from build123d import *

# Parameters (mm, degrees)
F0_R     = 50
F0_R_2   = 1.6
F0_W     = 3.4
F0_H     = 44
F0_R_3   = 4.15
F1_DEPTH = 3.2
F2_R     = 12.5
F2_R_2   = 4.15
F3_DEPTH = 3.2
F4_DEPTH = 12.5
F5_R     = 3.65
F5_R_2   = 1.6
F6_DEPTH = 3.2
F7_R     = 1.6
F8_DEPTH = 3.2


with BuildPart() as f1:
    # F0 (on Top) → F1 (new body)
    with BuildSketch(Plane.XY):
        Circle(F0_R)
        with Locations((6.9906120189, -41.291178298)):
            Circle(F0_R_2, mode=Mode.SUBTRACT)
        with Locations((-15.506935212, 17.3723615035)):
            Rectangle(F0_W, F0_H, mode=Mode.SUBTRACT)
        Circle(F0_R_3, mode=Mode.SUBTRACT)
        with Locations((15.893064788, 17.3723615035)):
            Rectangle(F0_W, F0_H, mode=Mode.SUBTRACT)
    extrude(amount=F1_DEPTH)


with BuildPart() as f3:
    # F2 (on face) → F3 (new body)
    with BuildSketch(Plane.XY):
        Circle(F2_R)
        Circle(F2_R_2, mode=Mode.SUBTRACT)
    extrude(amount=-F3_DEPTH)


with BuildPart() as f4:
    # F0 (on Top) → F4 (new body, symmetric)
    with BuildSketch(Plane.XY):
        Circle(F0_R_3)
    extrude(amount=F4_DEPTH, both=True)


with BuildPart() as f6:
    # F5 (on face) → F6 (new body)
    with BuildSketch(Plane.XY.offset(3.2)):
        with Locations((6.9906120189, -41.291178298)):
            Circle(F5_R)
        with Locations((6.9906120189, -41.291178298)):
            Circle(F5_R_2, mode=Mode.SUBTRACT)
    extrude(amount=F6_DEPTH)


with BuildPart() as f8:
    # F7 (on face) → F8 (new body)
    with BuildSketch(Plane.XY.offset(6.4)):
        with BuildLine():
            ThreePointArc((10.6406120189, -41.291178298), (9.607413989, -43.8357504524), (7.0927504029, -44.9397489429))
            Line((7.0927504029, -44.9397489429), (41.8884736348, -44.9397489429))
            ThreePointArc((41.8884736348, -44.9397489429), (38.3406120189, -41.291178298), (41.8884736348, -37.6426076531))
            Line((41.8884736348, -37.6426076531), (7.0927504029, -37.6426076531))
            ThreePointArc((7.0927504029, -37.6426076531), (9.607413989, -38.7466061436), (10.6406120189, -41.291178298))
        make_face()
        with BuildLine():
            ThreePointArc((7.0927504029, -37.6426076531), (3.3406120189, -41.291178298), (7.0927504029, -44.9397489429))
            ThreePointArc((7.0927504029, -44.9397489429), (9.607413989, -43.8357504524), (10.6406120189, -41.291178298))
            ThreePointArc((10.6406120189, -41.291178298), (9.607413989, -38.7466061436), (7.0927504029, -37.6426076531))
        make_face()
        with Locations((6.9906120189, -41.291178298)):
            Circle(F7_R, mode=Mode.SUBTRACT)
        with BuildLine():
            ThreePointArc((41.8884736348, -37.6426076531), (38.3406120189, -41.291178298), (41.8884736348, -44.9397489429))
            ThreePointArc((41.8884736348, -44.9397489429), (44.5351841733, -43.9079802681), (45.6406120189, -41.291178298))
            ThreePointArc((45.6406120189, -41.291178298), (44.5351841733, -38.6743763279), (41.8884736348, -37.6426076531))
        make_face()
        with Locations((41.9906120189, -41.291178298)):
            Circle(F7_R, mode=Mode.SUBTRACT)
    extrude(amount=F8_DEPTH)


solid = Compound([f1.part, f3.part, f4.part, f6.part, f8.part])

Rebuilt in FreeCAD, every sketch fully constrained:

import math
import FreeCAD as App
import Part
import Sketcher
from FreeCAD import Vector
Q = App.Units.Quantity

doc = App.newDocument("Part")
body = doc.addObject("PartDesign::Body", "Body")

sketch1 = doc.addObject("Sketcher::SketchObject", "Sketch")
body.addObject(sketch1)
sketch1.AttachmentSupport = (doc.XY_Plane, [""])
sketch1.MapMode = "FlatFace"
sketch1.addGeometry(Part.Circle(Vector(0, 0, 0), Vector(0, 0, 1), 50), False)
sketch1.addGeometry(Part.Circle(Vector(7, -41.3, 0), Vector(0, 0, 1), 1.6), False)
sketch1.addGeometry(Part.LineSegment(Vector(-13.8, -4.6, 0), Vector(-17.2, -4.6, 0)), False)
sketch1.addGeometry(Part.LineSegment(Vector(-17.2, -4.6, 0), Vector(-17.2, 39.4, 0)), False)
sketch1.addGeometry(Part.LineSegment(Vector(-17.2, 39.4, 0), Vector(-13.8, 39.4, 0)), False)
sketch1.addGeometry(Part.LineSegment(Vector(-13.8, 39.4, 0), Vector(-13.8, -4.6, 0)), False)
sketch1.addGeometry(Part.Circle(Vector(0, 0, 0), Vector(0, 0, 1), 4.2), False)
sketch1.addGeometry(Part.LineSegment(Vector(17.6, -4.6, 0), Vector(14.2, -4.6, 0)), False)
sketch1.addGeometry(Part.LineSegment(Vector(14.2, -4.6, 0), Vector(14.2, 39.4, 0)), False)
sketch1.addGeometry(Part.LineSegment(Vector(14.2, 39.4, 0), Vector(17.6, 39.4, 0)), False)
sketch1.addGeometry(Part.LineSegment(Vector(17.6, 39.4, 0), Vector(17.6, -4.6, 0)), False)
sketch1.addConstraint(Sketcher.Constraint("Coincident", 2, 2, 3, 1))
sketch1.addConstraint(Sketcher.Constraint("Coincident", 3, 2, 4, 1))
sketch1.addConstraint(Sketcher.Constraint("Coincident", 4, 2, 5, 1))
sketch1.addConstraint(Sketcher.Constraint("Coincident", 5, 2, 2, 1))
sketch1.addConstraint(Sketcher.Constraint("Coincident", 7, 2, 8, 1))
sketch1.addConstraint(Sketcher.Constraint("Coincident", 8, 2, 9, 1))
sketch1.addConstraint(Sketcher.Constraint("Coincident", 9, 2, 10, 1))
sketch1.addConstraint(Sketcher.Constraint("Coincident", 10, 2, 7, 1))
sketch1.addConstraint(Sketcher.Constraint("Horizontal", 2))
sketch1.addConstraint(Sketcher.Constraint("Vertical", 3))
sketch1.addConstraint(Sketcher.Constraint("Horizontal", 4))
sketch1.addConstraint(Sketcher.Constraint("Vertical", 5))
sketch1.addConstraint(Sketcher.Constraint("Horizontal", 7))
sketch1.addConstraint(Sketcher.Constraint("Vertical", 8))
sketch1.addConstraint(Sketcher.Constraint("Horizontal", 9))
sketch1.addConstraint(Sketcher.Constraint("Vertical", 10))
sketch1.addConstraint(Sketcher.Constraint("Coincident", 0, 3, -1, 1))
sketch1.addConstraint(Sketcher.Constraint("Coincident", 6, 3, -1, 1))
sketch1.addConstraint(Sketcher.Constraint("Horizontal", 5, 2, 7, 2))
sketch1.addConstraint(Sketcher.Constraint("Horizontal", 4, 2, 8, 2))
sketch1.addConstraint(Sketcher.Constraint("Equal", 4, 7))
sketch1.addConstraint(Sketcher.Constraint("Diameter", 0, Q("100 mm")))
sketch1.addConstraint(Sketcher.Constraint("Diameter", 1, Q("3.2 mm")))
sketch1.addConstraint(Sketcher.Constraint("Diameter", 6, Q("8.3 mm")))
sketch1.addConstraint(Sketcher.Constraint("DistanceY", 3, 1, 3, 2, Q("44 mm")))
sketch1.addConstraint(Sketcher.Constraint("DistanceX", 2, 2, 2, 1, Q("3.4 mm")))
sketch1.addConstraint(Sketcher.Constraint("DistanceX", 5, 2, 7, 2, Q("28 mm")))
sketch1.addConstraint(Sketcher.Constraint("DistanceY", 1, 3, -1, 1, Q("41.291178 mm")))
sketch1.addConstraint(Sketcher.Constraint("DistanceY", 2, 2, -1, 1, Q("4.627638 mm")))
sketch1.addConstraint(Sketcher.Constraint("DistanceX", -1, 1, 1, 3, Q("6.990612 mm")))
sketch1.addConstraint(Sketcher.Constraint("DistanceX", 2, 2, -1, 1, Q("17.206935 mm")))
pad1 = doc.addObject("PartDesign::Pad", "Pad")
body.addObject(pad1)
pad1.Profile = sketch1
pad1.Length = 3.2
body2 = doc.addObject("PartDesign::Body", "Body001")

sketch2 = doc.addObject("Sketcher::SketchObject", "Sketch001")
body2.addObject(sketch2)
sketch2.AttachmentSupport = (doc.getObject("XY_Plane001"), [""])
sketch2.MapMode = "FlatFace"
sketch2.addGeometry(Part.Circle(Vector(0, 0, 0), Vector(0, 0, 1), 12.5), False)
sketch2.addGeometry(Part.Circle(Vector(0, 0, 0), Vector(0, 0, 1), 4.2), False)
sketch2.addConstraint(Sketcher.Constraint("Coincident", 0, 3, -1, 1))
sketch2.addConstraint(Sketcher.Constraint("Coincident", 1, 3, -1, 1))
sketch2.addConstraint(Sketcher.Constraint("Diameter", 0, Q("25 mm")))
sketch2.addConstraint(Sketcher.Constraint("Diameter", 1, Q("8.3 mm")))
pad2 = doc.addObject("PartDesign::Pad", "Pad001")
body2.addObject(pad2)
pad2.Profile = sketch2
pad2.Length = 3.2
pad2.Reversed = True
body3 = doc.addObject("PartDesign::Body", "Body002")

sketch3 = doc.addObject("Sketcher::SketchObject", "Sketch002")
body3.addObject(sketch3)
sketch3.AttachmentSupport = (doc.getObject("XY_Plane002"), [""])
sketch3.MapMode = "FlatFace"
sketch3.addGeometry(Part.Circle(Vector(0, 0, 0), Vector(0, 0, 1), 4.2), False)
sketch3.addConstraint(Sketcher.Constraint("Coincident", 0, 3, -1, 1))
sketch3.addConstraint(Sketcher.Constraint("Diameter", 0, Q("8.3 mm")))
pad3 = doc.addObject("PartDesign::Pad", "Pad002")
body3.addObject(pad3)
pad3.Profile = sketch3
pad3.Length = 25
pad3.Midplane = True
body4 = doc.addObject("PartDesign::Body", "Body003")

sketch4 = doc.addObject("Sketcher::SketchObject", "Sketch003")
body4.addObject(sketch4)
sketch4.AttachmentSupport = (doc.getObject("XY_Plane003"), [""])
sketch4.MapMode = "FlatFace"
sketch4.AttachmentOffset = App.Placement(Vector(0, 0, 3.2), App.Rotation())
sketch4.addGeometry(Part.Circle(Vector(7, -41.3, 0), Vector(0, 0, 1), 3.6), False)
sketch4.addGeometry(Part.Circle(Vector(7, -41.3, 0), Vector(0, 0, 1), 1.6), False)
sketch4.addConstraint(Sketcher.Constraint("Coincident", 1, 3, 0, 3))
sketch4.addConstraint(Sketcher.Constraint("Diameter", 0, Q("7.3 mm")))
sketch4.addConstraint(Sketcher.Constraint("Diameter", 1, Q("3.2 mm")))
sketch4.addConstraint(Sketcher.Constraint("DistanceY", 0, 3, -1, 1, Q("41.291178 mm")))
sketch4.addConstraint(Sketcher.Constraint("DistanceX", -1, 1, 0, 3, Q("6.990612 mm")))
pad4 = doc.addObject("PartDesign::Pad", "Pad003")
body4.addObject(pad4)
pad4.Profile = sketch4
pad4.Length = 3.2
body5 = doc.addObject("PartDesign::Body", "Body004")

sketch5 = doc.addObject("Sketcher::SketchObject", "Sketch004")
body5.addObject(sketch5)
sketch5.AttachmentSupport = (doc.getObject("XY_Plane004"), [""])
sketch5.MapMode = "FlatFace"
sketch5.AttachmentOffset = App.Placement(Vector(0, 0, 6.4), App.Rotation())
sketch5.addGeometry(Part.LineSegment(Vector(7.1, -44.9, 0), Vector(41.9, -44.9, 0)), False)
sketch5.addGeometry(Part.ArcOfCircle(Part.Circle(Vector(42, -41.3, 0), Vector(0, 0, 1), 3.6), math.radians(-92), math.radians(0)), False)
sketch5.addGeometry(Part.ArcOfCircle(Part.Circle(Vector(42, -41.3, 0), Vector(0, 0, 1), 3.6), math.radians(0), math.radians(92)), False)
sketch5.addGeometry(Part.LineSegment(Vector(41.9, -37.6, 0), Vector(7.1, -37.6, 0)), False)
sketch5.addGeometry(Part.ArcOfCircle(Part.Circle(Vector(7, -41.3, 0), Vector(0, 0, 1), 3.6), math.radians(88), math.radians(272)), False)
sketch5.addGeometry(Part.Circle(Vector(7, -41.3, 0), Vector(0, 0, 1), 1.6), False)
sketch5.addGeometry(Part.Circle(Vector(42, -41.3, 0), Vector(0, 0, 1), 1.6), False)
sketch5.addConstraint(Sketcher.Constraint("Coincident", 0, 2, 1, 1))
sketch5.addConstraint(Sketcher.Constraint("Tangent", 1, 2, 2, 1))
sketch5.addConstraint(Sketcher.Constraint("Coincident", 2, 2, 3, 1))
sketch5.addConstraint(Sketcher.Constraint("Coincident", 3, 2, 4, 1))
sketch5.addConstraint(Sketcher.Constraint("Coincident", 4, 2, 0, 1))
sketch5.addConstraint(Sketcher.Constraint("Horizontal", 0))
sketch5.addConstraint(Sketcher.Constraint("Horizontal", 3))
sketch5.addConstraint(Sketcher.Constraint("Coincident", 5, 3, 4, 3))
sketch5.addConstraint(Sketcher.Constraint("Coincident", 6, 3, 1, 3))
sketch5.addConstraint(Sketcher.Constraint("Equal", 1, 2))
sketch5.addConstraint(Sketcher.Constraint("Equal", 2, 4))
sketch5.addConstraint(Sketcher.Constraint("Equal", 5, 6))
sketch5.addConstraint(Sketcher.Constraint("Horizontal", 2, 3, 4, 3))
sketch5.addConstraint(Sketcher.Constraint("Horizontal", 6, 3, 1, 2))
sketch5.addConstraint(Sketcher.Constraint("Vertical", 0, 2, 2, 2))
sketch5.addConstraint(Sketcher.Constraint("Diameter", 5, Q("3.2 mm")))
sketch5.addConstraint(Sketcher.Constraint("Radius", 1, Q("3.65 mm")))
sketch5.addConstraint(Sketcher.Constraint("DistanceX", 4, 3, 1, 3, Q("35 mm")))
sketch5.addConstraint(Sketcher.Constraint("DistanceX", 0, 1, 0, 2, Q("34.795723 mm")))
sketch5.addConstraint(Sketcher.Constraint("DistanceY", 1, 3, -1, 1, Q("41.291178 mm")))
sketch5.addConstraint(Sketcher.Constraint("DistanceX", -1, 1, 3, 2, Q("7.09275 mm")))
pad5 = doc.addObject("PartDesign::Pad", "Pad004")
body5.addObject(pad5)
pad5.Profile = sketch5
pad5.Length = 3.2

doc.recompute()
